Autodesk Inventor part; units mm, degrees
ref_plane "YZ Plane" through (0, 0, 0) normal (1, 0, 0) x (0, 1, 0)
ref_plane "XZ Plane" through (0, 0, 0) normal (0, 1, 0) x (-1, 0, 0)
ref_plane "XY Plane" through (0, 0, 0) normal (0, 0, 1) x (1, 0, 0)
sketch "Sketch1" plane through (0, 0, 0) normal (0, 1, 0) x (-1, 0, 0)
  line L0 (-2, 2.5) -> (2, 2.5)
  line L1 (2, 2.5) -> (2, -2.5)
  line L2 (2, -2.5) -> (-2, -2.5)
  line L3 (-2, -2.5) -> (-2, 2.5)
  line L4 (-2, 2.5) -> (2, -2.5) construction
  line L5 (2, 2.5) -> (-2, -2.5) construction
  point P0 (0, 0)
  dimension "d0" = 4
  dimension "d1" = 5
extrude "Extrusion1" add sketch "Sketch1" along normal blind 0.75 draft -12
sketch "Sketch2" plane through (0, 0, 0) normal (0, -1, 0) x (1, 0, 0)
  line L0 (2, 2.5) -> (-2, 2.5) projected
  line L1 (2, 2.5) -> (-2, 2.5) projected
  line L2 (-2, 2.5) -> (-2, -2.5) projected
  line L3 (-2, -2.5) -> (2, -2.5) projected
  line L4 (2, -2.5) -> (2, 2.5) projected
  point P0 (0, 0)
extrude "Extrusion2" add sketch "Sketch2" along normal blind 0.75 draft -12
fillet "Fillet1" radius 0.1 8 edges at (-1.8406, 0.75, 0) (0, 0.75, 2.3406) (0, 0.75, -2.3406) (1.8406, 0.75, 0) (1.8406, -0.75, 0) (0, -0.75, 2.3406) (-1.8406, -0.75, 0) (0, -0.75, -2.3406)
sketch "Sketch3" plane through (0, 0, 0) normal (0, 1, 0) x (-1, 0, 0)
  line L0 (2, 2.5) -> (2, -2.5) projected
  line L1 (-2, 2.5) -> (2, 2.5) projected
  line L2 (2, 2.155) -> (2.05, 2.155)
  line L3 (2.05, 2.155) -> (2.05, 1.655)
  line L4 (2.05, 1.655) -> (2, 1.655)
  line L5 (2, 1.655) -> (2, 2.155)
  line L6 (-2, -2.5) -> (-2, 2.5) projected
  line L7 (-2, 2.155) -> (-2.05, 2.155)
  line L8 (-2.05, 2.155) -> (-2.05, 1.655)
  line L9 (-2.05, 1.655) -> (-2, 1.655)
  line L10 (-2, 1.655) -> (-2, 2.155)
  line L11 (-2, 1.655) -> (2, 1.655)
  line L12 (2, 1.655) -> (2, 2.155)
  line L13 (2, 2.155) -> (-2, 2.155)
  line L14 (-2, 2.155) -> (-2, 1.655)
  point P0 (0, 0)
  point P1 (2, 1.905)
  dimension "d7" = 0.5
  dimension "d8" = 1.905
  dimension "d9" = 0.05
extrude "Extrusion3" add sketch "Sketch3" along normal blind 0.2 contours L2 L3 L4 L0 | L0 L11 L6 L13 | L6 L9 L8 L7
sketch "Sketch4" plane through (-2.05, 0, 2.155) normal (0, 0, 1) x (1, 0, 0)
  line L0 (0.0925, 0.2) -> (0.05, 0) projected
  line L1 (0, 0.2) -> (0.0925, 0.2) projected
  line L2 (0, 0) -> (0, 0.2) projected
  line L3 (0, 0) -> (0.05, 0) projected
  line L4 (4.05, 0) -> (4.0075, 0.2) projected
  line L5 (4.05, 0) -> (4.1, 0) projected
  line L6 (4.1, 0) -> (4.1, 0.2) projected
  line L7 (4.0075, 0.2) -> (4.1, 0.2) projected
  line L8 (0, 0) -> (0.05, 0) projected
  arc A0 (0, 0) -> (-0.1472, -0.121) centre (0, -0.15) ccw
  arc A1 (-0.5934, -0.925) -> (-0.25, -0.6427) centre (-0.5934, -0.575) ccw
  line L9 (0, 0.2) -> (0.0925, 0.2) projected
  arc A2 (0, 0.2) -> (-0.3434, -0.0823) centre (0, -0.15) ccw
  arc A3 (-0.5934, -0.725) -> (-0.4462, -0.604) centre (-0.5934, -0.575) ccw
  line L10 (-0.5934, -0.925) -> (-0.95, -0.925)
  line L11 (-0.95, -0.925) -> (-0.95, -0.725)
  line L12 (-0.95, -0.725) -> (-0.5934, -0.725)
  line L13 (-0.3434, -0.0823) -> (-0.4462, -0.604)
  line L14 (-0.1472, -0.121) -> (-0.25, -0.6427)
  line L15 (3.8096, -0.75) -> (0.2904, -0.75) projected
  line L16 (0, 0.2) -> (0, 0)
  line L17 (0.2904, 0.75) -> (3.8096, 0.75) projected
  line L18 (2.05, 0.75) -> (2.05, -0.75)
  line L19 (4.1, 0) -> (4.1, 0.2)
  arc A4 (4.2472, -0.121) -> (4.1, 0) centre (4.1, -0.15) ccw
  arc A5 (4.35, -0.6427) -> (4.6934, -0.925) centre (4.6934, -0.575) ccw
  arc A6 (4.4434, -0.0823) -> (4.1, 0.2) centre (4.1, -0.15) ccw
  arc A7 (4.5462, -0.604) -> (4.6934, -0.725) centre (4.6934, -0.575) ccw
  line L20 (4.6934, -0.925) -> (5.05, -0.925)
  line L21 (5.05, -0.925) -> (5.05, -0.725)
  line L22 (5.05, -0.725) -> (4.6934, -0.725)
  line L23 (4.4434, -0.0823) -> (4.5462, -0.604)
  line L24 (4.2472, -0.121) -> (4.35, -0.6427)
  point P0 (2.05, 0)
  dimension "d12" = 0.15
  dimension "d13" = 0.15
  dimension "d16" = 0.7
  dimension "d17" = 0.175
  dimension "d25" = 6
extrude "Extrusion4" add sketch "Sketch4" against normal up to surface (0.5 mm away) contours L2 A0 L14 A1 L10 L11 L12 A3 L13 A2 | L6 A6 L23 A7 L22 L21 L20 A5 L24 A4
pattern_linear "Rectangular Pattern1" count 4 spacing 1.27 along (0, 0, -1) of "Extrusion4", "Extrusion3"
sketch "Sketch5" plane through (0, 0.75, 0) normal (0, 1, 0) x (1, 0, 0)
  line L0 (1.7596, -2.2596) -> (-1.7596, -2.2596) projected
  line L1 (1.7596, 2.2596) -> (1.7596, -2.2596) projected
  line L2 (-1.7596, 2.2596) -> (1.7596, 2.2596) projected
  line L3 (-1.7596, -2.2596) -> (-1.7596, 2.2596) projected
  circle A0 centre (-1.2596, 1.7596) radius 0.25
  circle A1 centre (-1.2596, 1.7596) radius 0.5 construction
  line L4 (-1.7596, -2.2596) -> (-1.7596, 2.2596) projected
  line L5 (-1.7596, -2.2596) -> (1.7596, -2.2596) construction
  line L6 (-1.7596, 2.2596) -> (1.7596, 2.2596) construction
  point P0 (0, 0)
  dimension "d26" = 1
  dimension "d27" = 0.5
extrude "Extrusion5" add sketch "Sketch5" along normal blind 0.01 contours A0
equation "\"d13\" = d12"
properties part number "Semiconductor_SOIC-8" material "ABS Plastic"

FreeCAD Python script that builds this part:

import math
import FreeCAD as App
import Part
import Sketcher
Q = App.Units.Quantity


def edges_at(feature, points):
    """Names of the edges that pass closest to the given points."""
    edges = feature.Shape.Edges
    near = lambda p: min(range(len(edges)), key=lambda i: edges[i].distToShape(Part.Vertex(*p))[0])
    return sorted({f"Edge{near(p) + 1}" for p in points})

doc = App.newDocument("Part")
body = doc.addObject("PartDesign::Body", "Body")

sketch1 = doc.addObject("Sketcher::SketchObject", "Sketch")
body.addObject(sketch1)
sketch1.AttachmentSupport = (doc.XZ_Plane, [""])
sketch1.MapMode = "FlatFace"
sketch1.addGeometry(Part.LineSegment(App.Vector(-2, 2.5, 0), App.Vector(2, 2.5, 0)), False)
sketch1.addGeometry(Part.LineSegment(App.Vector(2, 2.5, 0), App.Vector(2, -2.5, 0)), False)
sketch1.addGeometry(Part.LineSegment(App.Vector(2, -2.5, 0), App.Vector(-2, -2.5, 0)), False)
sketch1.addGeometry(Part.LineSegment(App.Vector(-2, -2.5, 0), App.Vector(-2, 2.5, 0)), False)
sketch1.addConstraint(Sketcher.Constraint("Coincident", 0, 2, 1, 1))
sketch1.addConstraint(Sketcher.Constraint("Coincident", 1, 2, 2, 1))
sketch1.addConstraint(Sketcher.Constraint("Coincident", 2, 2, 3, 1))
sketch1.addConstraint(Sketcher.Constraint("Coincident", 3, 2, 0, 1))
sketch1.addConstraint(Sketcher.Constraint("Horizontal", 0))
sketch1.addConstraint(Sketcher.Constraint("Vertical", 1))
sketch1.addConstraint(Sketcher.Constraint("Horizontal", 2))
sketch1.addConstraint(Sketcher.Constraint("Vertical", 3))
sketch1.addConstraint(Sketcher.Constraint("Symmetric", 0, 2, 2, 2, -1, 1))
sketch1.addConstraint(Sketcher.Constraint("DistanceX", 0, 1, 0, 2, Q("4 mm")))
sketch1.addConstraint(Sketcher.Constraint("DistanceY", 1, 2, 1, 1, Q("5 mm")))
pad1 = doc.addObject("PartDesign::Pad", "Pad")
body.addObject(pad1)
pad1.Profile = sketch1
pad1.Length = 0.75
pad1.Reversed = True
pad1.TaperAngle = -12

sketch2 = doc.addObject("Sketcher::SketchObject", "Sketch001")
body.addObject(sketch2)
sketch2.AttachmentSupport = (doc.XZ_Plane, [""])
sketch2.MapMode = "FlatFace"
sketch2.addGeometry(Part.LineSegment(App.Vector(2, -2.5, 0), App.Vector(2, 2.5, 0)), False)
sketch2.addGeometry(Part.LineSegment(App.Vector(2, 2.5, 0), App.Vector(-2, 2.5, 0)), False)
sketch2.addGeometry(Part.LineSegment(App.Vector(-2, 2.5, 0), App.Vector(-2, -2.5, 0)), False)
sketch2.addGeometry(Part.LineSegment(App.Vector(-2, -2.5, 0), App.Vector(2, -2.5, 0)), False)
sketch2.addConstraint(Sketcher.Constraint("Coincident", 0, 2, 1, 1))
sketch2.addConstraint(Sketcher.Constraint("Coincident", 1, 2, 2, 1))
sketch2.addConstraint(Sketcher.Constraint("Coincident", 2, 2, 3, 1))
sketch2.addConstraint(Sketcher.Constraint("Coincident", 3, 2, 0, 1))
sketch2.addConstraint(Sketcher.Constraint("Vertical", 0))
sketch2.addConstraint(Sketcher.Constraint("Horizontal", 1))
sketch2.addConstraint(Sketcher.Constraint("Vertical", 2))
sketch2.addConstraint(Sketcher.Constraint("Horizontal", 3))
sketch2.addConstraint(Sketcher.Constraint("Symmetric", 0, 2, 2, 2, -1, 1))
sketch2.addConstraint(Sketcher.Constraint("DistanceX", 1, 2, 1, 1, Q("4 mm")))
sketch2.addConstraint(Sketcher.Constraint("DistanceY", 0, 1, 0, 2, Q("5 mm")))
pad2 = doc.addObject("PartDesign::Pad", "Pad001")
body.addObject(pad2)
pad2.Profile = sketch2
pad2.Length = 0.75
pad2.TaperAngle = -12
doc.recompute()

fillet = doc.addObject("PartDesign::Fillet", "Fillet")
body.addObject(fillet)
fillet.Base = (pad2, edges_at(pad2, [
    (-1.841, 0.75, 0),
    (0, 0.75, 2.341),
    (0, 0.75, -2.341),
    (1.841, 0.75, 0),
    (1.841, -0.75, 0),
    (0, -0.75, 2.341),
    (-1.841, -0.75, 0),
    (0, -0.75, -2.341),
]))
fillet.Radius = 0.1

sketch3 = doc.addObject("Sketcher::SketchObject", "Sketch002")
body.addObject(sketch3)
sketch3.AttachmentSupport = (doc.XZ_Plane, [""])
sketch3.MapMode = "FlatFace"
sketch3.addGeometry(Part.LineSegment(App.Vector(-2.05, 2.155, 0), App.Vector(2.05, 2.155, 0)), False)
sketch3.addGeometry(Part.LineSegment(App.Vector(2.05, 2.155, 0), App.Vector(2.05, 1.655, 0)), False)
sketch3.addGeometry(Part.LineSegment(App.Vector(2.05, 1.655, 0), App.Vector(-2.05, 1.655, 0)), False)
sketch3.addGeometry(Part.LineSegment(App.Vector(-2.05, 1.655, 0), App.Vector(-2.05, 2.155, 0)), False)
sketch3.addConstraint(Sketcher.Constraint("Coincident", 0, 2, 1, 1))
sketch3.addConstraint(Sketcher.Constraint("Coincident", 1, 2, 2, 1))
sketch3.addConstraint(Sketcher.Constraint("Coincident", 2, 2, 3, 1))
sketch3.addConstraint(Sketcher.Constraint("Coincident", 3, 2, 0, 1))
sketch3.addConstraint(Sketcher.Constraint("Horizontal", 0))
sketch3.addConstraint(Sketcher.Constraint("Vertical", 1))
sketch3.addConstraint(Sketcher.Constraint("Horizontal", 2))
sketch3.addConstraint(Sketcher.Constraint("Vertical", 3))
sketch3.addConstraint(Sketcher.Constraint("DistanceY", 1, 2, 1, 1, Q("0.5 mm")))
sketch3.addConstraint(Sketcher.Constraint("DistanceX", 0, 1, 0, 2, Q("4.1 mm")))
sketch3.addConstraint(Sketcher.Constraint("DistanceX", -1, 1, 0, 2, Q("2.05 mm")))
sketch3.addConstraint(Sketcher.Constraint("DistanceY", -1, 1, 0, 2, Q("2.155 mm")))
pad3 = doc.addObject("PartDesign::Pad", "Pad002")
body.addObject(pad3)
pad3.Profile = sketch3
pad3.Length = 0.2
pad3.Reversed = True

sketch4 = doc.addObject("Sketcher::SketchObject", "Sketch003")
body.addObject(sketch4)
sketch4.AttachmentSupport = (doc.XY_Plane, [""])
sketch4.MapMode = "FlatFace"
sketch4.AttachmentOffset = App.Placement(App.Vector(0, 0, 2.155), App.Rotation())
sketch4.addGeometry(Part.LineSegment(App.Vector(-2.05, 0, 0), App.Vector(-2.05, 0.2, 0)), False)
sketch4.addGeometry(Part.ArcOfCircle(Part.Circle(App.Vector(-2.05, -0.15, 0), App.Vector(0, 0, 1), 0.35), math.radians(90), math.radians(168.847376)), False)
sketch4.addGeometry(Part.LineSegment(App.Vector(-2.3934, -0.0823, 0), App.Vector(-2.4962, -0.604, 0)), False)
sketch4.addGeometry(Part.ArcOfCircle(Part.Circle(App.Vector(-2.6434, -0.575, 0), App.Vector(0, 0, 1), 0.15), math.radians(-90), math.radians(-11.145161)), False)
sketch4.addGeometry(Part.LineSegment(App.Vector(-2.6434, -0.725, 0), App.Vector(-3, -0.725, 0)), False)
sketch4.addGeometry(Part.LineSegment(App.Vector(-3, -0.725, 0), App.Vector(-3, -0.925, 0)), False)
sketch4.addGeometry(Part.LineSegment(App.Vector(-3, -0.925, 0), App.Vector(-2.6434, -0.925, 0)), False)
sketch4.addGeometry(Part.ArcOfCircle(Part.Circle(App.Vector(-2.6434, -0.575, 0), App.Vector(0, 0, 1), 0.35), math.radians(-90), math.radians(-11.152624)), False)
sketch4.addGeometry(Part.LineSegment(App.Vector(-2.3, -0.6427, 0), App.Vector(-2.1972, -0.121, 0)), False)
sketch4.addGeometry(Part.ArcOfCircle(Part.Circle(App.Vector(-2.05, -0.15, 0), App.Vector(0, 0, 1), 0.15), math.radians(90), math.radians(168.854839)), False)
sketch4.addGeometry(Part.LineSegment(App.Vector(2.05, 0.2, 0), App.Vector(2.05, 0, 0)), False)
sketch4.addGeometry(Part.ArcOfCircle(Part.Circle(App.Vector(2.05, -0.15, 0), App.Vector(0, 0, 1), 0.150029), math.radians(11.145161), math.radians(90)), False)
sketch4.addGeometry(Part.LineSegment(App.Vector(2.1972, -0.121, 0), App.Vector(2.3, -0.6427, 0)), False)
sketch4.addGeometry(Part.ArcOfCircle(Part.Circle(App.Vector(2.6434, -0.575, 0), App.Vector(0, 0, 1), 0.35001), math.radians(-168.847376), math.radians(-90)), False)
sketch4.addGeometry(Part.LineSegment(App.Vector(2.6434, -0.925, 0), App.Vector(3, -0.925, 0)), False)
sketch4.addGeometry(Part.LineSegment(App.Vector(3, -0.925, 0), App.Vector(3, -0.725, 0)), False)
sketch4.addGeometry(Part.LineSegment(App.Vector(3, -0.725, 0), App.Vector(2.6434, -0.725, 0)), False)
sketch4.addGeometry(Part.ArcOfCircle(Part.Circle(App.Vector(2.6434, -0.575, 0), App.Vector(0, 0, 1), 0.150029), math.radians(-168.854839), math.radians(-90)), False)
sketch4.addGeometry(Part.LineSegment(App.Vector(2.4962, -0.604, 0), App.Vector(2.3934, -0.0823, 0)), False)
sketch4.addGeometry(Part.ArcOfCircle(Part.Circle(App.Vector(2.05, -0.15, 0), App.Vector(0, 0, 1), 0.35001), math.radians(11.152624), math.radians(90)), False)
sketch4.addConstraint(Sketcher.Constraint("Coincident", 0, 2, 1, 1))
sketch4.addConstraint(Sketcher.Constraint("Tangent", 1, 2, 2, 1))
sketch4.addConstraint(Sketcher.Constraint("Tangent", 2, 2, 3, 2))
sketch4.addConstraint(Sketcher.Constraint("Tangent", 3, 1, 4, 1))
sketch4.addConstraint(Sketcher.Constraint("Coincident", 4, 2, 5, 1))
sketch4.addConstraint(Sketcher.Constraint("Coincident", 5, 2, 6, 1))
sketch4.addConstraint(Sketcher.Constraint("Tangent", 6, 2, 7, 1))
sketch4.addConstraint(Sketcher.Constraint("Tangent", 7, 2, 8, 1))
sketch4.addConstraint(Sketcher.Constraint("Tangent", 8, 2, 9, 2))
sketch4.addConstraint(Sketcher.Constraint("Coincident", 9, 1, 0, 1))
sketch4.addConstraint(Sketcher.Constraint("Coincident", 10, 2, 11, 2))
sketch4.addConstraint(Sketcher.Constraint("Tangent", 11, 1, 12, 1))
sketch4.addConstraint(Sketcher.Constraint("Tangent", 12, 2, 13, 1))
sketch4.addConstraint(Sketcher.Constraint("Tangent", 13, 2, 14, 1))
sketch4.addConstraint(Sketcher.Constraint("Coincident", 14, 2, 15, 1))
sketch4.addConstraint(Sketcher.Constraint("Coincident", 15, 2, 16, 1))
sketch4.addConstraint(Sketcher.Constraint("Tangent", 16, 2, 17, 2))
sketch4.addConstraint(Sketcher.Constraint("Tangent", 17, 1, 18, 1))
sketch4.addConstraint(Sketcher.Constraint("Tangent", 18, 2, 19, 1))
sketch4.addConstraint(Sketcher.Constraint("Coincident", 19, 2, 10, 1))
sketch4.addConstraint(Sketcher.Constraint("Vertical", 0))
sketch4.addConstraint(Sketcher.Constraint("Horizontal", 4))
sketch4.addConstraint(Sketcher.Constraint("Vertical", 5))
sketch4.addConstraint(Sketcher.Constraint("Horizontal", 6))
sketch4.addConstraint(Sketcher.Constraint("Vertical", 10))
sketch4.addConstraint(Sketcher.Constraint("Horizontal", 14))
sketch4.addConstraint(Sketcher.Constraint("Vertical", 15))
sketch4.addConstraint(Sketcher.Constraint("Horizontal", 16))
sketch4.addConstraint(Sketcher.Constraint("Coincident", 7, 3, 3, 3))
sketch4.addConstraint(Sketcher.Constraint("Coincident", 9, 3, 1, 3))
sketch4.addConstraint(Sketcher.Constraint("Coincident", 17, 3, 13, 3))
sketch4.addConstraint(Sketcher.Constraint("Coincident", 19, 3, 11, 3))
sketch4.addConstraint(Sketcher.Constraint("Equal", 1, 7))
sketch4.addConstraint(Sketcher.Constraint("Equal", 3, 9))
sketch4.addConstraint(Sketcher.Constraint("Equal", 9, 11))
sketch4.addConstraint(Sketcher.Constraint("Equal", 7, 13))
sketch4.addConstraint(Sketcher.Constraint("Equal", 11, 17))
sketch4.addConstraint(Sketcher.Constraint("Equal", 13, 19))
sketch4.addConstraint(Sketcher.Constraint("Symmetric", 9, 1, 10, 2, -1, 1))
sketch4.addConstraint(Sketcher.Constraint("Symmetric", 1, 3, 11, 3, -2))
sketch4.addConstraint(Sketcher.Constraint("Symmetric", 3, 3, 13, 3, -2))
sketch4.addConstraint(Sketcher.Constraint("Vertical", 9, 3, 0, 2))
sketch4.addConstraint(Sketcher.Constraint("Equal", 6, 14))
sketch4.addConstraint(Sketcher.Constraint("Radius", 1, Q("0.35 mm")))
sketch4.addConstraint(Sketcher.Constraint("Radius", 3, Q("0.15 mm")))
sketch4.addConstraint(Sketcher.Constraint("DistanceX", 12, 2, 14, 2, Q("0.7 mm")))
sketch4.addConstraint(Sketcher.Constraint("DistanceX", 4, 2, -1, 1, Q("3 mm")))
sketch4.addConstraint(Sketcher.Constraint("DistanceX", 1, 3, 11, 3, Q("4.1 mm")))
sketch4.addConstraint(Sketcher.Constraint("DistanceX", 4, 2, 4, 1, Q("0.3566 mm")))
pad4 = doc.addObject("PartDesign::Pad", "Pad003")
body.addObject(pad4)
pad4.Profile = sketch4
pad4.Length = 0.5
pad4.Reversed = True
doc.recompute()

linearpattern = doc.addObject("PartDesign::LinearPattern", "LinearPattern")
body.addObject(linearpattern)
linearpattern.Originals = [pad4, pad3]
linearpattern.Direction = (doc.Z_Axis, [""])
linearpattern.Mode = "offset"
linearpattern.Offset = 1.27
linearpattern.Occurrences = 4
linearpattern.Reversed = True
body.Tip = linearpattern

sketch5 = doc.addObject("Sketcher::SketchObject", "Sketch004")
body.addObject(sketch5)
sketch5.AttachmentSupport = (doc.XZ_Plane, [""])
sketch5.MapMode = "FlatFace"
sketch5.AttachmentOffset = App.Placement(App.Vector(0, 0, -0.75), App.Rotation())
sketch5.addGeometry(Part.Circle(App.Vector(-1.2596, -1.7596, 0), App.Vector(0, 0, 1), 0.25), False)
sketch5.addConstraint(Sketcher.Constraint("Diameter", 0, Q("0.5 mm")))
sketch5.addConstraint(Sketcher.Constraint("DistanceX", 0, 3, -1, 1, Q("1.2596 mm")))
sketch5.addConstraint(Sketcher.Constraint("DistanceY", 0, 3, -1, 1, Q("1.7596 mm")))
pad5 = doc.addObject("PartDesign::Pad", "Pad004")
body.addObject(pad5)
pad5.Profile = sketch5
pad5.Length = 0.01
pad5.Reversed = True

doc.recompute()
